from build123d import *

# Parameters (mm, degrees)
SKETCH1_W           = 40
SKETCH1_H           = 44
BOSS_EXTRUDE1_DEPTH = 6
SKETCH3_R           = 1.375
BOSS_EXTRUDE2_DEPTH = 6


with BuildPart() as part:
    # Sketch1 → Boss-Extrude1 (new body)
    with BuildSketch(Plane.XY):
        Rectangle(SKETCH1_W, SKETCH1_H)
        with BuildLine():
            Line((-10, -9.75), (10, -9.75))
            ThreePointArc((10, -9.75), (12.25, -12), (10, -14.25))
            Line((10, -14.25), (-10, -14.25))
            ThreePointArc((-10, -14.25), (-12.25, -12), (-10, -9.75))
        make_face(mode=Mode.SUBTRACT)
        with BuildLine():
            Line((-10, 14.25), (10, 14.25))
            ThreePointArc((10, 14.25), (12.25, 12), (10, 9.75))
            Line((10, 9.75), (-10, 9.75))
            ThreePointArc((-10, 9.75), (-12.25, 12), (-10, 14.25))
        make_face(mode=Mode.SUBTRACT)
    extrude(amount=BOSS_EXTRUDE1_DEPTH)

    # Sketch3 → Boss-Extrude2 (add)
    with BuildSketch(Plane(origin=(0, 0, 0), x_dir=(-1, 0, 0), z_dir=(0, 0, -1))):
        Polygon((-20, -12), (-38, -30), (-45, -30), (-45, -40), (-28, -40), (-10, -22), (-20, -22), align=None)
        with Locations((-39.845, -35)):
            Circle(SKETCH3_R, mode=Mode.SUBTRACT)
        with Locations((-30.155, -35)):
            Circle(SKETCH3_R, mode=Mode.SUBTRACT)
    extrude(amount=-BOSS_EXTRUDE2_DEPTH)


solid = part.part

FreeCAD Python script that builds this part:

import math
import FreeCAD as App
import Part
import Sketcher

V = App.Vector
Q = App.Units.Quantity


def add_polygon(sketch, points):
    """Adds a closed chain of lines whose ends are joined by coincident constraints."""
    first, n = sketch.GeometryCount, len(points)
    for a, b in zip(points, points[1:] + points[:1]):
        sketch.addGeometry(Part.LineSegment(App.Vector(*a, 0), App.Vector(*b, 0)), False)
    for i in range(n):
        sketch.addConstraint(Sketcher.Constraint("Coincident", first + i, 2, first + (i + 1) % n, 1))

doc = App.newDocument("Part")
body = doc.addObject("PartDesign::Body", "Body")

sketch1 = body.newObject("Sketcher::SketchObject", "Sketch")
sketch1.AttachmentSupport = (doc.getObject("XY_Plane"), [""])
sketch1.MapMode = "FlatFace"
add_polygon(sketch1, [(-20, 22), (-20, -22), (20, -22), (20, 22)])
sketch1.addGeometry(Part.ArcOfCircle(Part.Circle(V(-10, -12, 0), V(0, 0, 1), 2.2), math.radians(90), math.radians(270)), False)
sketch1.addGeometry(Part.LineSegment(V(-10, -9.8, 0), V(10, -9.8, 0)), False)
sketch1.addGeometry(Part.ArcOfCircle(Part.Circle(V(10, -12, 0), V(0, 0, 1), 2.2), math.radians(-90), math.radians(90)), False)
sketch1.addGeometry(Part.LineSegment(V(10, -14.2, 0), V(-10, -14.2, 0)), False)
sketch1.addGeometry(Part.ArcOfCircle(Part.Circle(V(-10, 12, 0), V(0, 0, 1), 2.2), math.radians(90), math.radians(270)), False)
sketch1.addGeometry(Part.LineSegment(V(-10, 14.2, 0), V(10, 14.2, 0)), False)
sketch1.addGeometry(Part.ArcOfCircle(Part.Circle(V(10, 12, 0), V(0, 0, 1), 2.2), math.radians(-90), math.radians(90)), False)
sketch1.addGeometry(Part.LineSegment(V(10, 9.8, 0), V(-10, 9.8, 0)), False)
sketch1.addConstraint(Sketcher.Constraint("Tangent", 4, 1, 5, 1))
sketch1.addConstraint(Sketcher.Constraint("Tangent", 5, 2, 6, 2))
sketch1.addConstraint(Sketcher.Constraint("Tangent", 6, 1, 7, 1))
sketch1.addConstraint(Sketcher.Constraint("Tangent", 7, 2, 4, 2))
sketch1.addConstraint(Sketcher.Constraint("Tangent", 8, 1, 9, 1))
sketch1.addConstraint(Sketcher.Constraint("Tangent", 9, 2, 10, 2))
sketch1.addConstraint(Sketcher.Constraint("Tangent", 10, 1, 11, 1))
sketch1.addConstraint(Sketcher.Constraint("Tangent", 11, 2, 8, 2))
sketch1.addConstraint(Sketcher.Constraint("Vertical", 0))
sketch1.addConstraint(Sketcher.Constraint("Horizontal", 1))
sketch1.addConstraint(Sketcher.Constraint("Vertical", 2))
sketch1.addConstraint(Sketcher.Constraint("Horizontal", 3))
sketch1.addConstraint(Sketcher.Constraint("Horizontal", 5))
sketch1.addConstraint(Sketcher.Constraint("Horizontal", 7))
sketch1.addConstraint(Sketcher.Constraint("Horizontal", 9))
sketch1.addConstraint(Sketcher.Constraint("Horizontal", 11))
sketch1.addConstraint(Sketcher.Constraint("Equal", 6, 8))
sketch1.addConstraint(Sketcher.Constraint("Symmetric", 6, 3, 8, 3, -1, 1))
sketch1.addConstraint(Sketcher.Constraint("Symmetric", 0, 2, 2, 2, -1, 1))
sketch1.addConstraint(Sketcher.Constraint("Vertical", 4, 3, 8, 3))
sketch1.addConstraint(Sketcher.Constraint("Vertical", 6, 3, 10, 3))
sketch1.addConstraint(Sketcher.Constraint("DistanceX", 1, 1, 1, 2, Q("40 mm")))
sketch1.addConstraint(Sketcher.Constraint("DistanceX", 5, 1, 5, 2, Q("20 mm")))
sketch1.addConstraint(Sketcher.Constraint("DistanceY", 0, 2, 0, 1, Q("44 mm")))
sketch1.addConstraint(Sketcher.Constraint("Radius", 4, Q("2.25 mm")))
sketch1.addConstraint(Sketcher.Constraint("DistanceY", 4, 3, -1, 1, Q("12 mm")))
pad1 = body.newObject("PartDesign::Pad", "Pad")
pad1.Profile = sketch1
pad1.Length = 6

sketch2 = body.newObject("Sketcher::SketchObject", "Sketch001")
sketch2.AttachmentSupport = (doc.getObject("XY_Plane"), [""])
sketch2.MapMode = "FlatFace"
add_polygon(sketch2, [(20, -12), (38, -30), (45, -30), (45, -40), (28, -40), (10, -22), (20, -22)])
sketch2.addGeometry(Part.Circle(V(39.8, -35, 0), V(0, 0, 1), 1.4), False)
sketch2.addGeometry(Part.Circle(V(30.2, -35, 0), V(0, 0, 1), 1.4), False)
sketch2.addConstraint(Sketcher.Constraint("Horizontal", 1))
sketch2.addConstraint(Sketcher.Constraint("Vertical", 2))
sketch2.addConstraint(Sketcher.Constraint("Horizontal", 3))
sketch2.addConstraint(Sketcher.Constraint("Horizontal", 5))
sketch2.addConstraint(Sketcher.Constraint("Vertical", 6))
sketch2.addConstraint(Sketcher.Constraint("Equal", 7, 8))
sketch2.addConstraint(Sketcher.Constraint("Parallel", 0, 4))
sketch2.addConstraint(Sketcher.Constraint("Horizontal", 7, 3, 8, 3))
sketch2.addConstraint(Sketcher.Constraint("Equal", 5, 2))
sketch2.addConstraint(Sketcher.Constraint("Equal", 2, 6))
sketch2.addConstraint(Sketcher.Constraint("Diameter", 7, Q("2.75 mm")))
sketch2.addConstraint(Sketcher.Constraint("DistanceX", 1, 1, 1, 2, Q("7 mm")))
sketch2.addConstraint(Sketcher.Constraint("DistanceX", 3, 2, 3, 1, Q("17 mm")))
sketch2.addConstraint(Sketcher.Constraint("Angle", 0, Q("-45 deg")))
sketch2.addConstraint(Sketcher.Constraint("DistanceY", 7, 3, -1, 1, Q("35 mm")))
sketch2.addConstraint(Sketcher.Constraint("DistanceX", -1, 1, 0, 2, Q("38 mm")))
sketch2.addConstraint(Sketcher.Constraint("DistanceY", 0, 2, -1, 1, Q("30 mm")))
sketch2.addConstraint(Sketcher.Constraint("DistanceX", -1, 1, 4, 2, Q("10 mm")))
sketch2.addConstraint(Sketcher.Constraint("DistanceX", 8, 3, 7, 3, Q("9.69 mm")))
sketch2.addConstraint(Sketcher.Constraint("DistanceX", -1, 1, 7, 3, Q("39.845 mm")))
pad2 = body.newObject("PartDesign::Pad", "Pad001")
pad2.Profile = sketch2
pad2.Length = 6

doc.recompute()
